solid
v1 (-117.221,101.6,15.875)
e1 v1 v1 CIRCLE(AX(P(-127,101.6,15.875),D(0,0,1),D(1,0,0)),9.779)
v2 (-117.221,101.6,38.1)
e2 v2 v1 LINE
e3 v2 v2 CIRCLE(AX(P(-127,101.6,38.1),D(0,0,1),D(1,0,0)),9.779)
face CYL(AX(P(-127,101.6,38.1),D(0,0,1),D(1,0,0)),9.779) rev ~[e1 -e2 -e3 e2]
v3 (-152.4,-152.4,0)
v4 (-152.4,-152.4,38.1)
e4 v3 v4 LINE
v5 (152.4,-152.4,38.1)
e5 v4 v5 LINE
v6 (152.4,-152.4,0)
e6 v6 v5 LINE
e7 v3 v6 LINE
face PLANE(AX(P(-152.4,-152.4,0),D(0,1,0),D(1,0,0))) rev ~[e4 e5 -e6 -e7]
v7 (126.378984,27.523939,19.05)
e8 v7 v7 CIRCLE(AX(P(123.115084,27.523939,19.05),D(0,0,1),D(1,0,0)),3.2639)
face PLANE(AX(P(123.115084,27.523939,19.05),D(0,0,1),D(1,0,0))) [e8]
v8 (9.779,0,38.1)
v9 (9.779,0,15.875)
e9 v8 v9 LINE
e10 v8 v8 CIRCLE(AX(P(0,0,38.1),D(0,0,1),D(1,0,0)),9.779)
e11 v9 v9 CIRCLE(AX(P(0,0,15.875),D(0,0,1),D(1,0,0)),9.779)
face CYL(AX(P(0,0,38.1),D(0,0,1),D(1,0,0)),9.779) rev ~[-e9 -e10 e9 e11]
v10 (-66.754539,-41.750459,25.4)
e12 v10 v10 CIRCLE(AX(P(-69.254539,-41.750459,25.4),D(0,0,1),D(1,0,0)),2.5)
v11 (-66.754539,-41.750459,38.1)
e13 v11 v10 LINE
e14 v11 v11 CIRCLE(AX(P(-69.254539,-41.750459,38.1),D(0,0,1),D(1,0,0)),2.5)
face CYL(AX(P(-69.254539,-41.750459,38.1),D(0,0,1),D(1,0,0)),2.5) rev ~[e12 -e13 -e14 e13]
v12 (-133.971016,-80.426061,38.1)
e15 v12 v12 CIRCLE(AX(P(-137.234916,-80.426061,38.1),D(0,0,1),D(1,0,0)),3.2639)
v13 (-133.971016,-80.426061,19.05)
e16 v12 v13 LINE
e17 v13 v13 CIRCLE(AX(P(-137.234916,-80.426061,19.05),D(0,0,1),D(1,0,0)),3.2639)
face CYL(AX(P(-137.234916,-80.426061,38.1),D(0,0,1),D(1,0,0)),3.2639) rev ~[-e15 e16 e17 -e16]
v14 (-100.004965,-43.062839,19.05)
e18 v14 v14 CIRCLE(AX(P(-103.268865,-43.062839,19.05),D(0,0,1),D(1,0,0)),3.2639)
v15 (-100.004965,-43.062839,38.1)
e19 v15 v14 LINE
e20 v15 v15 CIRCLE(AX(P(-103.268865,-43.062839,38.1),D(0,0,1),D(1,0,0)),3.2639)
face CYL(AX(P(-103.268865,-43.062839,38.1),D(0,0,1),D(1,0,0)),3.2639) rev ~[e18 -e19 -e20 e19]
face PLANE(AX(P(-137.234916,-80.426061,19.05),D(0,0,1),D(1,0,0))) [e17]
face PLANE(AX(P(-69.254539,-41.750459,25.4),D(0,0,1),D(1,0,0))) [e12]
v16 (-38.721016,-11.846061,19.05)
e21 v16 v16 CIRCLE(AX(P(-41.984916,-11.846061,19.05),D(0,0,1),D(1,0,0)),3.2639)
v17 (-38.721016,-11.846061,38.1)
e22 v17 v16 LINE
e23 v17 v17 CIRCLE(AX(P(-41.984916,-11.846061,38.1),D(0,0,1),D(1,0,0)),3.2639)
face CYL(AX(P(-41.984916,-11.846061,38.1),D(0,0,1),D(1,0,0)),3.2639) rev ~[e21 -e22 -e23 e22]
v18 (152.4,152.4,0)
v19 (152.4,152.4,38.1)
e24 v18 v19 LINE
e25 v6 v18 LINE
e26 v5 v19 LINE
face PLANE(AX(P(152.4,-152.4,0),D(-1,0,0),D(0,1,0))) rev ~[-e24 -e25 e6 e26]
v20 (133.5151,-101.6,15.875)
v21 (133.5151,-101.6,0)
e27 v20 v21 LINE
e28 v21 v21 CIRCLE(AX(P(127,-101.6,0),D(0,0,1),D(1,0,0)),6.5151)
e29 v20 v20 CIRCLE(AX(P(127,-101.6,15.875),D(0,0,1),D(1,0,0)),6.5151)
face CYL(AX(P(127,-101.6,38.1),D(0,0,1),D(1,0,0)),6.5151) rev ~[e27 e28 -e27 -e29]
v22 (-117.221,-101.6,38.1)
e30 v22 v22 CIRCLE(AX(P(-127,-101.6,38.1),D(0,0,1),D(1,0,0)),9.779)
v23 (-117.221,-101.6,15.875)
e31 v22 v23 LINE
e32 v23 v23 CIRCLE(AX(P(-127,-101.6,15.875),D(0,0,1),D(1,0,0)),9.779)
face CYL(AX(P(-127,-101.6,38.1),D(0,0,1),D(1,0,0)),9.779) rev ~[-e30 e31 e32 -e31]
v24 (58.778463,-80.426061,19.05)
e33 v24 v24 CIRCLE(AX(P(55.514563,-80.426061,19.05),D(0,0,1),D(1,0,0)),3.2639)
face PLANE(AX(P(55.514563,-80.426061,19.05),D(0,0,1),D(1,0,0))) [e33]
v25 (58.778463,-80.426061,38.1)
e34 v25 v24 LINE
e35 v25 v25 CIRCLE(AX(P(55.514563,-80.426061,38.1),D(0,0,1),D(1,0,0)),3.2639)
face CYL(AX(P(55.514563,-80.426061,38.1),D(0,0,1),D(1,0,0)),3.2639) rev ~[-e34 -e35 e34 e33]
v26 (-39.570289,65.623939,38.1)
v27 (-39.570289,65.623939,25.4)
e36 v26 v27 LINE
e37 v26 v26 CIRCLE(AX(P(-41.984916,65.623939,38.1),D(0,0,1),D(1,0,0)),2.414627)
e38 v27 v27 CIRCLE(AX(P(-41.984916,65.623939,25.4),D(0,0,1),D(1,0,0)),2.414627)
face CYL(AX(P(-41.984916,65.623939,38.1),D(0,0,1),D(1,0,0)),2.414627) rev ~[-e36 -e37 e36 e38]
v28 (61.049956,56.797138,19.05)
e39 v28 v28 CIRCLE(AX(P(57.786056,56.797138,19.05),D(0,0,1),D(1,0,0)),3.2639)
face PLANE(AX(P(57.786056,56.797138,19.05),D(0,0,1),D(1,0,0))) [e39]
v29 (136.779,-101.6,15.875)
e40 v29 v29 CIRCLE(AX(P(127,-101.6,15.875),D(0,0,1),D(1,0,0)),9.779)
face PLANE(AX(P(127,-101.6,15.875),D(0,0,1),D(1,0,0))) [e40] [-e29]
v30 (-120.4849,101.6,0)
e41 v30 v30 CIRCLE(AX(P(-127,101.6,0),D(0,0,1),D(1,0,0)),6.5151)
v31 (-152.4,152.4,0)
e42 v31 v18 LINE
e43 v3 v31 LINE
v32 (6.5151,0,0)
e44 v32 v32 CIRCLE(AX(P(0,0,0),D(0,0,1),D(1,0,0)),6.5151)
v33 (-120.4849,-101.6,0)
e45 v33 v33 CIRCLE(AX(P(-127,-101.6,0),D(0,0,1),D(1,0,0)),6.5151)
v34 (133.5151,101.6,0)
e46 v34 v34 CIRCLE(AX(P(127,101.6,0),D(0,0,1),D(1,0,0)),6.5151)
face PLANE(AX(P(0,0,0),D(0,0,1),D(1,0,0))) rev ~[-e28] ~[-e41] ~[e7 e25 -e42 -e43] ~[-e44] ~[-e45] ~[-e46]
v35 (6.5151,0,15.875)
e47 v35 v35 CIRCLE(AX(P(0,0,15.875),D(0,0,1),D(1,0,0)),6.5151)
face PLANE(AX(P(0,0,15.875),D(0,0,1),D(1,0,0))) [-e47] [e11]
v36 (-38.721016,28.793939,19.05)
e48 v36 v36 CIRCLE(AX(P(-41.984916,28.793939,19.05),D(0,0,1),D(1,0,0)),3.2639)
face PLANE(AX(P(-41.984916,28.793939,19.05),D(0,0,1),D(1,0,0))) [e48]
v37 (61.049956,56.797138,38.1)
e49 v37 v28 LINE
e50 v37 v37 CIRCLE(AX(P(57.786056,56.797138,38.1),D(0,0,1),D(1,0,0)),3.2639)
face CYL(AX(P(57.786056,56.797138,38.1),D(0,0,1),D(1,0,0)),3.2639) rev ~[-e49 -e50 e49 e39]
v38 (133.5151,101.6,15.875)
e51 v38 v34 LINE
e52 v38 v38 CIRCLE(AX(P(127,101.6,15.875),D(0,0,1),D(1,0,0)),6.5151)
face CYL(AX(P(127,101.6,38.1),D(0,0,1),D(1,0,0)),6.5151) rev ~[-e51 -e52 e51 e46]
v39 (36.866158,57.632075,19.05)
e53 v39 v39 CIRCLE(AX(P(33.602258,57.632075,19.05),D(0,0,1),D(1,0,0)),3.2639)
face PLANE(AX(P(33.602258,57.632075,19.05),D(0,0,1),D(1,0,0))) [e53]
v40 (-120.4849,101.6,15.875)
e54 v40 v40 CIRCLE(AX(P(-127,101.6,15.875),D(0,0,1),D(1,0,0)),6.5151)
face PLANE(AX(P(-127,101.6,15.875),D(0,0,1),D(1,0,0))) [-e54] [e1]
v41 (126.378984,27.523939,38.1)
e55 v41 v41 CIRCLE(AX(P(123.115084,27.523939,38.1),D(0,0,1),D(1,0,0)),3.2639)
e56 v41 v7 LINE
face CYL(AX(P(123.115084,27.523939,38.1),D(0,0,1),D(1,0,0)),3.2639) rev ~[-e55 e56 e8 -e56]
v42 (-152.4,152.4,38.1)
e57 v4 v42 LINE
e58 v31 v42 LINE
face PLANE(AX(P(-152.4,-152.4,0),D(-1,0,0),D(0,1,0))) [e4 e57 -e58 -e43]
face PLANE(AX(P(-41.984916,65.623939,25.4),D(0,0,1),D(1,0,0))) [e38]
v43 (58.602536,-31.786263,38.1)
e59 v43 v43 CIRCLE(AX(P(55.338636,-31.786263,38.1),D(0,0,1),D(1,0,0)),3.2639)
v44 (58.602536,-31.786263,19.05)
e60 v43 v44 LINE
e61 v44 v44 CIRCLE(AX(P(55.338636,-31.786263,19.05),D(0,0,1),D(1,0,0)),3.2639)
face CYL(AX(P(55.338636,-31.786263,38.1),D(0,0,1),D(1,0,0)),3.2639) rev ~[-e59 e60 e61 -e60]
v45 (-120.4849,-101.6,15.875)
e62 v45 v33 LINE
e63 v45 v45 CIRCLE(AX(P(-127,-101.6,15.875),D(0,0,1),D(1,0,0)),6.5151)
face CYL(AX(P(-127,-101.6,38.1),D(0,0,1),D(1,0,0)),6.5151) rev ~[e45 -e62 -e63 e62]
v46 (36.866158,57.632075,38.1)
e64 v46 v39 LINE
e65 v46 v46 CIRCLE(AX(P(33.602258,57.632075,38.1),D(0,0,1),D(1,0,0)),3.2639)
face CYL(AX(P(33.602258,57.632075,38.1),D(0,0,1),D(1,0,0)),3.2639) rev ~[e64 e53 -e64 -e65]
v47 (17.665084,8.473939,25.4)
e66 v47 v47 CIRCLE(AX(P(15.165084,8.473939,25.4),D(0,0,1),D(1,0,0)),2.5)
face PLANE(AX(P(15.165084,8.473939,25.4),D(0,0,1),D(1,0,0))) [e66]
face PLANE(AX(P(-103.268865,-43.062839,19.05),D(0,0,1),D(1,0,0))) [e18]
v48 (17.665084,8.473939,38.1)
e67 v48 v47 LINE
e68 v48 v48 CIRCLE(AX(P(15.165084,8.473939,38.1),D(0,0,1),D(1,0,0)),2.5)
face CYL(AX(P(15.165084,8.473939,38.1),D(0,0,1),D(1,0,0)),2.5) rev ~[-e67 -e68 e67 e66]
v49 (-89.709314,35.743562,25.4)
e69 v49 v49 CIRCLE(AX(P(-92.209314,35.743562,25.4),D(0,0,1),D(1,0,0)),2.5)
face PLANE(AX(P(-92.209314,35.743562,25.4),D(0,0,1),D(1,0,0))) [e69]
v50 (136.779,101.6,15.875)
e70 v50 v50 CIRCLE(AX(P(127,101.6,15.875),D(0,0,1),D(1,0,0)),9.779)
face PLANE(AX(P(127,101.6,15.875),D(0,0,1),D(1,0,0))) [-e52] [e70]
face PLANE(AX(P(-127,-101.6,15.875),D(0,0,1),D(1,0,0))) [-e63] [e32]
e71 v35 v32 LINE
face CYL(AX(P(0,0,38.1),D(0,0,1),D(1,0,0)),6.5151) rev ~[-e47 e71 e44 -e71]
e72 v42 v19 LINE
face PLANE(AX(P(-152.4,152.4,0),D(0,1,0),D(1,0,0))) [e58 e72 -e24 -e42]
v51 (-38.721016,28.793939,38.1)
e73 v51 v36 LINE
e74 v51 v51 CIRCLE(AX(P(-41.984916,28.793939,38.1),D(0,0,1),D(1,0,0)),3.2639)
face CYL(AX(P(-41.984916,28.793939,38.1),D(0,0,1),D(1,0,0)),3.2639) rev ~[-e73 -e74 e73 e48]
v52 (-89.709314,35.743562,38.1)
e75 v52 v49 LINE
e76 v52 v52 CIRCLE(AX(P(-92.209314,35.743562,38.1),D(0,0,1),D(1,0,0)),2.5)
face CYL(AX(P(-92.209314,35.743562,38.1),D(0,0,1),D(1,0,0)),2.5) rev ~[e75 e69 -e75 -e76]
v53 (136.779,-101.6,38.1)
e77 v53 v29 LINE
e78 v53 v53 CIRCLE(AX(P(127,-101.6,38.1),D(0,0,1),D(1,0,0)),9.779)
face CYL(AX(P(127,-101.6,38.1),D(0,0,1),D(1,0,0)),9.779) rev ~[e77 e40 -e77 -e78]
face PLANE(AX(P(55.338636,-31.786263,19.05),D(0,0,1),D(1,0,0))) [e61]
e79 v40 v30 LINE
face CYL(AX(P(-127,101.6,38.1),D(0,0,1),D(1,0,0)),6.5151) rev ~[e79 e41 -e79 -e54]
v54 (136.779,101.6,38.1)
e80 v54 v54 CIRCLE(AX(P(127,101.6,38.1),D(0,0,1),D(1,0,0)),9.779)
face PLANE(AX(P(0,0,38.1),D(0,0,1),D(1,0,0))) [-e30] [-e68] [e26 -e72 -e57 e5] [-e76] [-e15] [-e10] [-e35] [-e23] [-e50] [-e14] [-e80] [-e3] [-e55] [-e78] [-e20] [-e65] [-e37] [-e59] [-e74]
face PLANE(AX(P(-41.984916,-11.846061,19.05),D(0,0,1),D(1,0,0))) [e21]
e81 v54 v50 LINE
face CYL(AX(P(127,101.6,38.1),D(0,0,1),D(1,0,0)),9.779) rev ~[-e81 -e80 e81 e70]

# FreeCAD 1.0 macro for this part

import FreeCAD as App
import Part
import Sketcher

V = App.Vector
Q = App.Units.Quantity

doc = App.newDocument("Part")
body = doc.addObject("PartDesign::Body", "Body")

# Sketch on XY plane
sketch1 = doc.addObject("Sketcher::SketchObject", "Sketch")
body.addObject(sketch1)
sketch1.AttachmentSupport = (doc.XY_Plane, [""])
sketch1.MapMode = "FlatFace"
sketch1.addGeometry([
    Part.LineSegment(V(-152, 152, 0), V(-152, -152, 0)),
    Part.LineSegment(V(-152, -152, 0), V(152, -152, 0)),
    Part.LineSegment(V(152, -152, 0), V(152, 152, 0)),
    Part.LineSegment(V(152, 152, 0), V(-152, 152, 0)),
], False)
sketch1.addConstraint([
    Sketcher.Constraint("Coincident", 0, 2, 1, 1),
    Sketcher.Constraint("Coincident", 1, 2, 2, 1),
    Sketcher.Constraint("Coincident", 2, 2, 3, 1),
    Sketcher.Constraint("Coincident", 3, 2, 0, 1),
    Sketcher.Constraint("Vertical", 0),
    Sketcher.Constraint("Horizontal", 1),
    Sketcher.Constraint("Vertical", 2),
    Sketcher.Constraint("Horizontal", 3),
    Sketcher.Constraint("Symmetric", 0, 2, 2, 2, -1, 1),
    Sketcher.Constraint("Equal", 3, 0),
    Sketcher.Constraint("DistanceX", 1, 1, 1, 2, Q("12 in")),
])
pad1 = doc.addObject("PartDesign::Pad", "Pad")
body.addObject(pad1)
pad1.Profile = sketch1
pad1.Length = Q("1.5 in")

# Sketch on XY plane
sketch2 = doc.addObject("Sketcher::SketchObject", "Sketch001")
body.addObject(sketch2)
sketch2.AttachmentSupport = (doc.XY_Plane, [""])
sketch2.MapMode = "FlatFace"
sketch2.AttachmentOffset = App.Placement(V(0, 0, 1.5 * 25.4), App.Rotation())
sketch2.addGeometry([
    Part.Circle(V(-127, 102, 0), V(0, 0, 1), 7),  # 0
    Part.Circle(V(127, 102, 0), V(0, 0, 1), 7),  # 1
    Part.Circle(V(127, -102, 0), V(0, 0, 1), 7),  # 2
    Part.Circle(V(-127, -102, 0), V(0, 0, 1), 7),  # 3
    Part.Circle(V(0, 0, 0), V(0, 0, 1), 7),  # 4
], False)
sketch2.addConstraint([
    Sketcher.Constraint("Coincident", 4, 3, -1, 1),
    Sketcher.Constraint("Equal", 0, 1),
    Sketcher.Constraint("Equal", 1, 2),
    Sketcher.Constraint("Equal", 2, 3),
    Sketcher.Constraint("Equal", 3, 4),
    Sketcher.Constraint("Symmetric", 0, 3, 2, 3, -1, 1),
    Sketcher.Constraint("Symmetric", 1, 3, 3, 3, -1, 1),
    Sketcher.Constraint("Symmetric", 0, 3, 1, 3, -2),
    Sketcher.Constraint("Diameter", 0, Q("0.513 in")),
    Sketcher.Constraint("DistanceX", 0, 3, -1, 1, Q("5 in")),
    Sketcher.Constraint("DistanceY", -1, 1, 0, 3, Q("4 in")),
])
pocket1 = doc.addObject("PartDesign::Pocket", "Pocket")
body.addObject(pocket1)
pocket1.Profile = sketch2
pocket1.Type = "ThroughAll"

# Sketch on XY plane
sketch3 = doc.addObject("Sketcher::SketchObject", "Sketch002")
body.addObject(sketch3)
sketch3.AttachmentSupport = (doc.XY_Plane, [""])
sketch3.MapMode = "FlatFace"
sketch3.AttachmentOffset = App.Placement(V(0, 0, 1.5 * 25.4), App.Rotation())
sketch3.addGeometry([
    Part.Circle(V(-127, 102, 0), V(0, 0, 1), 10),  # 0
    Part.Circle(V(127, 102, 0), V(0, 0, 1), 10),  # 1
    Part.Circle(V(0, 0, 0), V(0, 0, 1), 10),  # 2
    Part.Circle(V(127, -102, 0), V(0, 0, 1), 10),  # 3
    Part.Circle(V(-127, -102, 0), V(0, 0, 1), 10),  # 4
], False)
sketch3.addConstraint([
    Sketcher.Constraint("Coincident", 2, 3, -1, 1),
    Sketcher.Constraint("Equal", 0, 1),
    Sketcher.Constraint("Equal", 1, 2),
    Sketcher.Constraint("Equal", 2, 3),
    Sketcher.Constraint("Equal", 3, 4),
    Sketcher.Constraint("Symmetric", 0, 3, 3, 3, -1, 1),
    Sketcher.Constraint("Symmetric", 1, 3, 4, 3, -1, 1),
    Sketcher.Constraint("Symmetric", 0, 3, 1, 3, -2),
    Sketcher.Constraint("Diameter", 0, Q("0.77 in")),
    Sketcher.Constraint("DistanceX", 0, 3, -1, 1, Q("5 in")),
    Sketcher.Constraint("DistanceY", -1, 1, 0, 3, Q("4 in")),
])
pocket2 = doc.addObject("PartDesign::Pocket", "Pocket001")
body.addObject(pocket2)
pocket2.Profile = sketch3
pocket2.Length = Q("0.875 in")

# Sketch on XY plane
sketch4 = doc.addObject("Sketcher::SketchObject", "Sketch003")
body.addObject(sketch4)
sketch4.AttachmentSupport = (doc.XY_Plane, [""])
sketch4.MapMode = "FlatFace"
sketch4.AttachmentOffset = App.Placement(V(0, 0, 1.5 * 25.4), App.Rotation())
sketch4.addGeometry([
    Part.Circle(V(55.3, -31.8, 0), V(0, 0, 1), 3.3),  # 0
    Part.Circle(V(-103.3, -43.1, 0), V(0, 0, 1), 3.3),  # 1
    Part.Circle(V(-42, -11.8, 0), V(0, 0, 1), 3.3),  # 2
    Part.Circle(V(-42, 28.8, 0), V(0, 0, 1), 3.3),  # 3
    Part.Circle(V(123.1, 27.5, 0), V(0, 0, 1), 3.3),  # 4
    Part.Circle(V(-137.2, -80.4, 0), V(0, 0, 1), 3.3),  # 5
    Part.Circle(V(55.5, -80.4, 0), V(0, 0, 1), 3.3),  # 6
    Part.Circle(V(33.6, 57.6, 0), V(0, 0, 1), 3.3),  # 7
    Part.Circle(V(57.8, 56.8, 0), V(0, 0, 1), 3.3),  # 8
], False)
sketch4.addConstraint([
    Sketcher.Constraint("Equal", 0, 1),
    Sketcher.Constraint("Equal", 1, 2),
    Sketcher.Constraint("Equal", 2, 3),
    Sketcher.Constraint("Equal", 3, 4),
    Sketcher.Constraint("Equal", 4, 5),
    Sketcher.Constraint("Equal", 5, 6),
    Sketcher.Constraint("Equal", 6, 7),
    Sketcher.Constraint("Equal", 7, 8),
    Sketcher.Constraint("Horizontal", 5, 3, 6, 3),
    Sketcher.Constraint("Vertical", 2, 3, 3, 3),
    Sketcher.Constraint("Diameter", 0, Q("0.257 in")),
    Sketcher.Constraint("DistanceY", 2, 3, 3, 3, Q("1.6 in")),
    Sketcher.Constraint("DistanceX", 3, 3, 4, 3, Q("6.5 in")),
    Sketcher.Constraint("DistanceY", 5, 3, 2, 3, Q("2.7 in")),
    Sketcher.Constraint("DistanceY", 4, 3, 3, 3, Q("0.05 in")),
    Sketcher.Constraint("DistanceX", 5, 3, 2, 3, Q("3.75 in")),
    Sketcher.Constraint("DistanceX", 1, 3, 0, 3, Q("158.607501 mm")),
    Sketcher.Constraint("DistanceY", 0, 3, 2, 3, Q("19.940202 mm")),
    Sketcher.Constraint("DistanceX", 7, 3, 8, 3, Q("24.183798 mm")),
    Sketcher.Constraint("DistanceY", 4, 3, 8, 3, Q("29.273198 mm")),
    Sketcher.Constraint("DistanceY", 1, 3, -1, 1, Q("43.062839 mm")),
    Sketcher.Constraint("DistanceY", 2, 3, -1, 1, Q("11.846061 mm")),
    Sketcher.Constraint("DistanceX", -1, 1, 7, 3, Q("33.602258 mm")),
    Sketcher.Constraint("DistanceX", 1, 3, 2, 3, Q("61.283949 mm")),
    Sketcher.Constraint("DistanceX", 2, 3, 6, 3, Q("97.499479 mm")),
    Sketcher.Constraint("DistanceX", 7, 3, 0, 3, Q("21.736378 mm")),
    Sketcher.Constraint("DistanceY", -1, 1, 7, 3, Q("57.632075 mm")),
])
pocket3 = doc.addObject("PartDesign::Pocket", "Pocket002")
body.addObject(pocket3)
pocket3.Profile = sketch4
pocket3.Length = Q("0.75 in")

# Sketch on XY plane
sketch5 = doc.addObject("Sketcher::SketchObject", "Sketch004")
body.addObject(sketch5)
sketch5.AttachmentSupport = (doc.XY_Plane, [""])
sketch5.MapMode = "FlatFace"
sketch5.AttachmentOffset = App.Placement(V(0, 0, 1.5 * 25.4), App.Rotation())
sketch5.addGeometry([
    Part.Circle(V(-42, 65.6, 0), V(0, 0, 1), 2.4),
    Part.Circle(V(-92.2, 35.7, 0), V(0, 0, 1), 2.5),
    Part.Circle(V(-69.3, -41.8, 0), V(0, 0, 1), 2.5),
    Part.Circle(V(15.2, 8.5, 0), V(0, 0, 1), 2.5),
], False)
sketch5.addConstraint([
    Sketcher.Constraint("Equal", 1, 2),
    Sketcher.Constraint("Equal", 2, 3),
    Sketcher.Constraint("Diameter", 1, Q("5 mm")),
    Sketcher.Constraint("DistanceX", 0, 3, 3, 3, Q("2.25 in")),
    Sketcher.Constraint("DistanceY", 3, 3, 0, 3, Q("2.25 in")),
    Sketcher.Constraint("Diameter", 0, Q("4.829254 mm")),
    Sketcher.Constraint("DistanceY", -1, 1, 0, 3, Q("65.623939 mm")),
    Sketcher.Constraint("DistanceX", 2, 3, -1, 1, Q("69.254539 mm")),
    Sketcher.Constraint("DistanceY", 2, 3, -1, 1, Q("41.750459 mm")),
    Sketcher.Constraint("DistanceY", 2, 3, 1, 3, Q("77.494021 mm")),
    Sketcher.Constraint("DistanceX", 0, 3, -1, 1, Q("41.984916 mm")),
    Sketcher.Constraint("DistanceX", 1, 3, -1, 1, Q("92.209314 mm")),
])
pocket4 = doc.addObject("PartDesign::Pocket", "Pocket003")
body.addObject(pocket4)
pocket4.Profile = sketch5
pocket4.Length = Q("0.5 in")

doc.recompute()
